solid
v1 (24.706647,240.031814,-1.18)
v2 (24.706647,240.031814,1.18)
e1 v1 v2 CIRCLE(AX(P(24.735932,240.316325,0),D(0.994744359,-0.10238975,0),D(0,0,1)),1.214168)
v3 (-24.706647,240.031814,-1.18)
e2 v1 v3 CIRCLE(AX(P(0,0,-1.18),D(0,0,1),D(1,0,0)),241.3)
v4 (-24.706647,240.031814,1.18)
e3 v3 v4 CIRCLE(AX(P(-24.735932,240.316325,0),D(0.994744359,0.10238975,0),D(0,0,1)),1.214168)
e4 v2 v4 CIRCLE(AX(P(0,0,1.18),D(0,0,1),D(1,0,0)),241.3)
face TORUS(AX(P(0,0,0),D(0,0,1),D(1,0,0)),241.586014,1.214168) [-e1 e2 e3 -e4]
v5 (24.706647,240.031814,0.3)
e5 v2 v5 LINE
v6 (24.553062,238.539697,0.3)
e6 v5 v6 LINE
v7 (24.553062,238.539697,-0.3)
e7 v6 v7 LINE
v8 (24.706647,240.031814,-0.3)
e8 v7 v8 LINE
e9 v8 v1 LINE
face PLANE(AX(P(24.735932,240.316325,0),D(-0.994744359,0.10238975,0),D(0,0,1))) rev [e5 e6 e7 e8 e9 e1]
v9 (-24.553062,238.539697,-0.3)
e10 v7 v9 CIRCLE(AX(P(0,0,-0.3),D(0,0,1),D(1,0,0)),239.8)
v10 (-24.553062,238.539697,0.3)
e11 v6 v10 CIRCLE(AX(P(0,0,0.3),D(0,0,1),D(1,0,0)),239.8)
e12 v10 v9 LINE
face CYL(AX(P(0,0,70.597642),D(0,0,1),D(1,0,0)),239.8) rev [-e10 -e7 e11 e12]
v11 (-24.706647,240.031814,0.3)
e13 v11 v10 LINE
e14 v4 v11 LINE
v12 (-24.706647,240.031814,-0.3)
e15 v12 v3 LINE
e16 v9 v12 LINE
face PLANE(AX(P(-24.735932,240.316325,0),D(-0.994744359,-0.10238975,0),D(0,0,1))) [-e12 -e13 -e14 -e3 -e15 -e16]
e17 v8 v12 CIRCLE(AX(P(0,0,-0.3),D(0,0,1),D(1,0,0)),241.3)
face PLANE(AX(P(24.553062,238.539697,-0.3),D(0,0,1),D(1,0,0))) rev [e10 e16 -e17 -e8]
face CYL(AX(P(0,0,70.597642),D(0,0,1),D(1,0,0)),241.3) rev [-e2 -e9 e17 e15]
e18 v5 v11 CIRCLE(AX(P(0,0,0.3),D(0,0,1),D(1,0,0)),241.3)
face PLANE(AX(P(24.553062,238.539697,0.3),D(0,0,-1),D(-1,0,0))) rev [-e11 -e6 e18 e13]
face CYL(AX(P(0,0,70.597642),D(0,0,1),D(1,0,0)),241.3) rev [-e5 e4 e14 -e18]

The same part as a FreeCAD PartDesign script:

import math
import FreeCAD as App
import Part
import Sketcher

doc = App.newDocument("Part")
params = doc.addObject("Spreadsheet::Sheet", "Params")
for row, (alias, value) in enumerate([
    ("sketch1_width", "1.5 mm"),
    ("sketch1_height", "0.6 mm"),
    ("sketch1_height2", "0.88 mm"),
    ("revolution_angle", "5.8768 deg"),
    ("sketch2_width", "1.5 mm"),
    ("sketch2_height", "0.6 mm"),
    ("sketch2_height2", "0.88 mm"),
    ("revolution2_angle", "5.8768 deg"),
], start=1):
    params.set(f"A{row}", alias)
    params.set(f"B{row}", "=" + value)
    params.setAlias(f"B{row}", alias)

body = doc.addObject("PartDesign::Body", "Body")

sketch1 = doc.addObject("Sketcher::SketchObject", "Sketch")
body.addObject(sketch1)
sketch1.AttachmentSupport = (doc.YZ_Plane, [""])
sketch1.MapMode = "FlatFace"
sketch1.addGeometry([
    Part.LineSegment(App.Vector(239.8, -0.3, 0), App.Vector(241.3, -0.3, 0)),
    Part.LineSegment(App.Vector(241.3, -0.3, 0), App.Vector(241.3, -1.2, 0)),
    Part.ArcOfCircle(Part.Circle(App.Vector(241.6, 0, 0), App.Vector(0, 0, 1), 1.2), math.radians(-104), math.radians(104)),
    Part.LineSegment(App.Vector(241.3, 1.2, 0), App.Vector(241.3, 0.3, 0)),
    Part.LineSegment(App.Vector(241.3, 0.3, 0), App.Vector(239.8, 0.3, 0)),
    Part.LineSegment(App.Vector(239.8, 0.3, 0), App.Vector(239.8, -0.3, 0)),
], False)
sketch1.addConstraint([
    Sketcher.Constraint("Coincident", 0, 2, 1, 1),
    Sketcher.Constraint("Coincident", 1, 2, 2, 1),
    Sketcher.Constraint("Coincident", 2, 2, 3, 1),
    Sketcher.Constraint("Coincident", 3, 2, 4, 1),
    Sketcher.Constraint("Coincident", 4, 2, 5, 1),
    Sketcher.Constraint("Coincident", 5, 2, 0, 1),
    Sketcher.Constraint("Horizontal", 0),
    Sketcher.Constraint("Vertical", 1),
    Sketcher.Constraint("Vertical", 3),
    Sketcher.Constraint("Horizontal", 4),
    Sketcher.Constraint("Vertical", 5),
    Sketcher.Constraint("Symmetric", 1, 2, 2, 2, -1),
    Sketcher.Constraint("Equal", 1, 3),
    Sketcher.Constraint("DistanceX", 0, 1, 0, 2, 1.5),
    Sketcher.Constraint("DistanceY", 5, 2, 5, 1, 0.6),
    Sketcher.Constraint("DistanceY", 1, 2, 1, 1, 0.88),
    Sketcher.Constraint("DistanceX", -1, 1, 0, 2, 241.3),
    Sketcher.Constraint("Radius", 2, 1.214168),
])
sketch1.setExpression("Constraints[13]", "Params.sketch1_width")
sketch1.setExpression("Constraints[14]", "Params.sketch1_height")
sketch1.setExpression("Constraints[15]", "Params.sketch1_height2")
revolution = doc.addObject("PartDesign::Revolution", "Revolution")
body.addObject(revolution)
revolution.Profile = sketch1
revolution.ReferenceAxis = (sketch1, ["V_Axis"])
revolution.setExpression("Angle", "Params.revolution_angle")
revolution.Reversed = True

sketch2 = doc.addObject("Sketcher::SketchObject", "Sketch001")
body.addObject(sketch2)
sketch2.AttachmentSupport = (doc.YZ_Plane, [""])
sketch2.MapMode = "FlatFace"
sketch2.addGeometry([
    Part.LineSegment(App.Vector(239.8, -0.3, 0), App.Vector(241.3, -0.3, 0)),
    Part.LineSegment(App.Vector(241.3, -0.3, 0), App.Vector(241.3, -1.2, 0)),
    Part.ArcOfCircle(Part.Circle(App.Vector(241.6, 0, 0), App.Vector(0, 0, 1), 1.2), math.radians(-104), math.radians(104)),
    Part.LineSegment(App.Vector(241.3, 1.2, 0), App.Vector(241.3, 0.3, 0)),
    Part.LineSegment(App.Vector(241.3, 0.3, 0), App.Vector(239.8, 0.3, 0)),
    Part.LineSegment(App.Vector(239.8, 0.3, 0), App.Vector(239.8, -0.3, 0)),
], False)
sketch2.addConstraint([
    Sketcher.Constraint("Coincident", 0, 2, 1, 1),
    Sketcher.Constraint("Coincident", 1, 2, 2, 1),
    Sketcher.Constraint("Coincident", 2, 2, 3, 1),
    Sketcher.Constraint("Coincident", 3, 2, 4, 1),
    Sketcher.Constraint("Coincident", 4, 2, 5, 1),
    Sketcher.Constraint("Coincident", 5, 2, 0, 1),
    Sketcher.Constraint("Horizontal", 0),
    Sketcher.Constraint("Vertical", 1),
    Sketcher.Constraint("Vertical", 3),
    Sketcher.Constraint("Horizontal", 4),
    Sketcher.Constraint("Vertical", 5),
    Sketcher.Constraint("Symmetric", 1, 2, 2, 2, -1),
    Sketcher.Constraint("Equal", 1, 3),
    Sketcher.Constraint("DistanceX", 0, 1, 0, 2, 1.5),
    Sketcher.Constraint("DistanceY", 5, 2, 5, 1, 0.6),
    Sketcher.Constraint("DistanceY", 1, 2, 1, 1, 0.88),
    Sketcher.Constraint("DistanceX", -1, 1, 0, 2, 241.3),
    Sketcher.Constraint("Radius", 2, 1.214168),
])
sketch2.setExpression("Constraints[13]", "Params.sketch2_width")
sketch2.setExpression("Constraints[14]", "Params.sketch2_height")
sketch2.setExpression("Constraints[15]", "Params.sketch2_height2")
revolution2 = doc.addObject("PartDesign::Revolution", "Revolution001")
body.addObject(revolution2)
revolution2.Profile = sketch2
revolution2.ReferenceAxis = (sketch2, ["V_Axis"])
revolution2.setExpression("Angle", "Params.revolution2_angle")

doc.recompute()
